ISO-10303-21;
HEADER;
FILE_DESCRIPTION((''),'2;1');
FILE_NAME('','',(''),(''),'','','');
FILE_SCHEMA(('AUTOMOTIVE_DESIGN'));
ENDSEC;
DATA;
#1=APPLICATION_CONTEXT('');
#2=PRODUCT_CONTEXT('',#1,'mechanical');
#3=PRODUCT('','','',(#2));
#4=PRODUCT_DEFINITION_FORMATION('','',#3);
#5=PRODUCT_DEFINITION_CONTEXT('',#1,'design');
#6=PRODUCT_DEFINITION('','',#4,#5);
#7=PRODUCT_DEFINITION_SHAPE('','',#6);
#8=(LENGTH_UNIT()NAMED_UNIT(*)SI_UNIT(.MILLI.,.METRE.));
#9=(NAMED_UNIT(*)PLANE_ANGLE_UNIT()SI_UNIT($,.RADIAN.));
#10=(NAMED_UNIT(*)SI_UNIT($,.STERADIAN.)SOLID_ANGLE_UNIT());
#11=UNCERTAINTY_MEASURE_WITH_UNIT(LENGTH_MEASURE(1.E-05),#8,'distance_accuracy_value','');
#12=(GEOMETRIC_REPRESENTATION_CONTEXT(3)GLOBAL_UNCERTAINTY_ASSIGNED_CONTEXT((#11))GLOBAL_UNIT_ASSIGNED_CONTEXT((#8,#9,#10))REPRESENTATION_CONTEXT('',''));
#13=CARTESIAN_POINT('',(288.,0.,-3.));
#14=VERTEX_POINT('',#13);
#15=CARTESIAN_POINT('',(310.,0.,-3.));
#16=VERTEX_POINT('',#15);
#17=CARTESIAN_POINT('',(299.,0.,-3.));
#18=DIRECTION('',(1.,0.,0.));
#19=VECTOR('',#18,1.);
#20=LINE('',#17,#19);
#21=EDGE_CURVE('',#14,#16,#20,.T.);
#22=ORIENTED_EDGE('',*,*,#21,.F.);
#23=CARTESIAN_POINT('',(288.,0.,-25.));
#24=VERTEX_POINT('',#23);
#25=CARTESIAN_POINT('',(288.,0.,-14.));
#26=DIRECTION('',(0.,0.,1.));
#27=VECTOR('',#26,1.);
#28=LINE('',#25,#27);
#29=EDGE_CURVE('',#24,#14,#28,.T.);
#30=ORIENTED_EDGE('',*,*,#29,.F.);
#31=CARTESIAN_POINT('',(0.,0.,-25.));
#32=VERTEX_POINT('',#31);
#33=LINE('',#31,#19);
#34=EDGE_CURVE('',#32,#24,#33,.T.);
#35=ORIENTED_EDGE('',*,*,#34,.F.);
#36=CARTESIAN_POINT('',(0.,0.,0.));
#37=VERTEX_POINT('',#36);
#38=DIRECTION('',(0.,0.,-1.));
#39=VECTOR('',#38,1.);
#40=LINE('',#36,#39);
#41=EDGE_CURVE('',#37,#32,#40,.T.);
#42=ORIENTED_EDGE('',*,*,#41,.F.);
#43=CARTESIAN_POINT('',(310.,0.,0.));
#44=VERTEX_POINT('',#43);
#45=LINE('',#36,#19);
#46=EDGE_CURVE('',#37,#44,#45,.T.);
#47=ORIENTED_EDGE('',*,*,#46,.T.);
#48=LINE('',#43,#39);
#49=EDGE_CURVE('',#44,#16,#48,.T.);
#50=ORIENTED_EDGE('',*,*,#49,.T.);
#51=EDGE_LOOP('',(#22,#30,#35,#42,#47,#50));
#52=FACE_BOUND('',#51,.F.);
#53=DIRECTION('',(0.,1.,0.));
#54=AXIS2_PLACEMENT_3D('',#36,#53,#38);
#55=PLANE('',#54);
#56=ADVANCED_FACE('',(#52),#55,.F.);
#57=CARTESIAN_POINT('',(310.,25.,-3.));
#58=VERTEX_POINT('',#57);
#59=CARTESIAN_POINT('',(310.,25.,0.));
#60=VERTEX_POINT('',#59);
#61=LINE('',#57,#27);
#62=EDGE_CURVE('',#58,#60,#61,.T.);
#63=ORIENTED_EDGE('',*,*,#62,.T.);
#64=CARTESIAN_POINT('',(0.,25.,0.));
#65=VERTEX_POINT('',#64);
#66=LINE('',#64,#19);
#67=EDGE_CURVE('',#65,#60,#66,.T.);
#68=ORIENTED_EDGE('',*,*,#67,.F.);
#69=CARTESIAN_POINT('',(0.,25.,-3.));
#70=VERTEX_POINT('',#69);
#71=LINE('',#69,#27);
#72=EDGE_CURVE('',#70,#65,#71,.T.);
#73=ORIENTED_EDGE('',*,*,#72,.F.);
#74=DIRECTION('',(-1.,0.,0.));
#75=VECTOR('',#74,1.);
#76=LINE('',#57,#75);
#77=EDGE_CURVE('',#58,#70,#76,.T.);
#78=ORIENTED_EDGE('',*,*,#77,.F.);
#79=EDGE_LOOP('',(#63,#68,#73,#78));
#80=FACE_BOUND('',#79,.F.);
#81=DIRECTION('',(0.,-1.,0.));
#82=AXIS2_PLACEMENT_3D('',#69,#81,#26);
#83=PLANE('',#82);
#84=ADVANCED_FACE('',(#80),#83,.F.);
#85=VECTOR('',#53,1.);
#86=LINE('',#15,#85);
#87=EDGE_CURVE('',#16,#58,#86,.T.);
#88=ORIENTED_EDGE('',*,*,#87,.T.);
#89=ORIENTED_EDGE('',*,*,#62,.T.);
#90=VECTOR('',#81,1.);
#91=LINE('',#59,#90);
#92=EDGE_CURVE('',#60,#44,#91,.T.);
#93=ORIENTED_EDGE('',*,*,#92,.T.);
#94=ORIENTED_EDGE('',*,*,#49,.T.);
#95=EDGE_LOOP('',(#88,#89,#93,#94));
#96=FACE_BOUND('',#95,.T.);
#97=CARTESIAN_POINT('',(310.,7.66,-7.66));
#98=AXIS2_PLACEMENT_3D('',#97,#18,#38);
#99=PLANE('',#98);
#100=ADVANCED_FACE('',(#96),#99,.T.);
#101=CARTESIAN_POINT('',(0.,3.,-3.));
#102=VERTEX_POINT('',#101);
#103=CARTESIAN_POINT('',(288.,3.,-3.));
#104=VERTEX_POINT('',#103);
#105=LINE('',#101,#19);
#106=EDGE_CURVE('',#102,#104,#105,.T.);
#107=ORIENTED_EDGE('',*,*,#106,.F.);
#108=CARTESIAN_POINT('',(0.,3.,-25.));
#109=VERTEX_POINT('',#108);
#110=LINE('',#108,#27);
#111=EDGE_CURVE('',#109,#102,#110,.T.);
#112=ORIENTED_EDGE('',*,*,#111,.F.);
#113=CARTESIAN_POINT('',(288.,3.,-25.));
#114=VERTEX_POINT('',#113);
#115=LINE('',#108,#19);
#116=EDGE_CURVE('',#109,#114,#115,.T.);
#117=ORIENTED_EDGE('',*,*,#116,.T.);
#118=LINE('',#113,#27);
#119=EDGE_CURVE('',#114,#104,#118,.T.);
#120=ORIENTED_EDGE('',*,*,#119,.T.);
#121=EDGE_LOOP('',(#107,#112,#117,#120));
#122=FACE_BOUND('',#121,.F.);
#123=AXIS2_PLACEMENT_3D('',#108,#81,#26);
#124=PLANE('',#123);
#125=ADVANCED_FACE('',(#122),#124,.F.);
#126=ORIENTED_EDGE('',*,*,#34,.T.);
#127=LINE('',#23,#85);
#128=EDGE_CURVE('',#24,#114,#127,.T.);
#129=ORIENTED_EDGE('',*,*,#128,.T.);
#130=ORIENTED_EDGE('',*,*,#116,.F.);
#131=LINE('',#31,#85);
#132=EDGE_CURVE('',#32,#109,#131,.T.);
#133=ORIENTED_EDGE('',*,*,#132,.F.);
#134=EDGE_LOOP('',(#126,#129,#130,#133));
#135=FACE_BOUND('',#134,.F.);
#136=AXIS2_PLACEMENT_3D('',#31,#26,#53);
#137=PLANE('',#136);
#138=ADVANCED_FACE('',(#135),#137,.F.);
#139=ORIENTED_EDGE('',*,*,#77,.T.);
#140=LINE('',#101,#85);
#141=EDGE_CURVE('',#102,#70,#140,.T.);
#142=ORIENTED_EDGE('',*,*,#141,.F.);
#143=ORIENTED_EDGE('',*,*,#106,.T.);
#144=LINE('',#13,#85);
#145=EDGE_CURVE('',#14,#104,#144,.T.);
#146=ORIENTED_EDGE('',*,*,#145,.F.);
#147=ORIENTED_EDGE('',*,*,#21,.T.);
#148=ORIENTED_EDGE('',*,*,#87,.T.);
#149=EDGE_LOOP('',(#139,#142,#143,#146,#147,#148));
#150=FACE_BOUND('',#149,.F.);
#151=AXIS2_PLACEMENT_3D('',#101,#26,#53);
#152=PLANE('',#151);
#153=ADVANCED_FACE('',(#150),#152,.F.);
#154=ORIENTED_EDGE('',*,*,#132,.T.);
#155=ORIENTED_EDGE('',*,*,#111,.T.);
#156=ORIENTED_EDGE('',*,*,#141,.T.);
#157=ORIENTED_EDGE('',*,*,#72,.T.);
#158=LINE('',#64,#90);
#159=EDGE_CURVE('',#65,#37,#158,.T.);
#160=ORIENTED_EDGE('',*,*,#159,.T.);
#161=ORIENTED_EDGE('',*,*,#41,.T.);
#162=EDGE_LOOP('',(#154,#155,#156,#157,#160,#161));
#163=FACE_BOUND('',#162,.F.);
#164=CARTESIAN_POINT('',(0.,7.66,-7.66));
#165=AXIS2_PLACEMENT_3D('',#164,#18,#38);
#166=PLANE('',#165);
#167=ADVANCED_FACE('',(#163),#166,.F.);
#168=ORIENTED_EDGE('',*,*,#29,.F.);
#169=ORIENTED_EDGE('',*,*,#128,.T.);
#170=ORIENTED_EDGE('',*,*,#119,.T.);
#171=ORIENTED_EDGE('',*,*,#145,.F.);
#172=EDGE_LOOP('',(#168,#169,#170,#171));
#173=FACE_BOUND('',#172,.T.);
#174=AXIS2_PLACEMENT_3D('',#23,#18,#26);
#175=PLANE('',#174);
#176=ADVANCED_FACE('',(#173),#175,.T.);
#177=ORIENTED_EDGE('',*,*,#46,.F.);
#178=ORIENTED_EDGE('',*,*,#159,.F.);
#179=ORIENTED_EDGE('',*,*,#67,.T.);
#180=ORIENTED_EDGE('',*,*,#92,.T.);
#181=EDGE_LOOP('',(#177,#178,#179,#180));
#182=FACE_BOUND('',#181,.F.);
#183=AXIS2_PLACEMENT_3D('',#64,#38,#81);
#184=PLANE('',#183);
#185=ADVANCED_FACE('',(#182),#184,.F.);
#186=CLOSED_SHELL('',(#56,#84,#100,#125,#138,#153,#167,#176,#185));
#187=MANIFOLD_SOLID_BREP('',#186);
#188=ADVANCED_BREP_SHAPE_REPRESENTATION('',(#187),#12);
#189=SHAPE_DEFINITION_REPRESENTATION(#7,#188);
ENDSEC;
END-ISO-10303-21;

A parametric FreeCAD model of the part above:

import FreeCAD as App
import Part
import Sketcher


def add_polygon(sketch, points):
    """Adds a closed chain of lines whose ends are joined by coincident constraints."""
    first, n = sketch.GeometryCount, len(points)
    for a, b in zip(points, points[1:] + points[:1]):
        sketch.addGeometry(Part.LineSegment(App.Vector(*a, 0), App.Vector(*b, 0)), False)
    for i in range(n):
        sketch.addConstraint(Sketcher.Constraint("Coincident", first + i, 2, first + (i + 1) % n, 1))

doc = App.newDocument("Part")
body = doc.addObject("PartDesign::Body", "Body")

sketch1 = body.newObject("Sketcher::SketchObject", "Sketch")
sketch1.AttachmentSupport = (doc.getObject("YZ_Plane"), [""])
sketch1.MapMode = "FlatFace"
add_polygon(sketch1, [(25, 0), (0, 0), (0, -25), (3, -25), (3, -3), (25, -3)])
sketch1.addConstraint(Sketcher.Constraint("Horizontal", 0))
sketch1.addConstraint(Sketcher.Constraint("Vertical", 1))
sketch1.addConstraint(Sketcher.Constraint("Horizontal", 2))
sketch1.addConstraint(Sketcher.Constraint("Vertical", 3))
sketch1.addConstraint(Sketcher.Constraint("Horizontal", 4))
sketch1.addConstraint(Sketcher.Constraint("Vertical", 5))
sketch1.addConstraint(Sketcher.Constraint("Coincident", 0, 2, -1, 1))
sketch1.addConstraint(Sketcher.Constraint("Equal", 0, 1))
sketch1.addConstraint(Sketcher.Constraint("Equal", 4, 3))
sketch1.addConstraint(Sketcher.Constraint("DistanceX", 0, 2, 0, 1, 25.0))
sketch1.addConstraint(Sketcher.Constraint("DistanceX", 2, 1, 2, 2, 3.0))
pad1 = body.newObject("PartDesign::Pad", "Pad")
pad1.Profile = sketch1
pad1.Length = 310

sketch2 = body.newObject("Sketcher::SketchObject", "Sketch001")
sketch2.AttachmentSupport = (doc.getObject("XZ_Plane"), [""])
sketch2.MapMode = "FlatFace"
add_polygon(sketch2, [(288, -3), (288, -25), (310, -25), (310, -3)])
sketch2.addConstraint(Sketcher.Constraint("Vertical", 0))
sketch2.addConstraint(Sketcher.Constraint("Horizontal", 1))
sketch2.addConstraint(Sketcher.Constraint("Vertical", 2))
sketch2.addConstraint(Sketcher.Constraint("Horizontal", 3))
sketch2.addConstraint(Sketcher.Constraint("Equal", 3, 0))
sketch2.addConstraint(Sketcher.Constraint("DistanceX", 1, 1, 1, 2, 22.0))
sketch2.addConstraint(Sketcher.Constraint("DistanceX", -1, 1, 0, 2, 288.0))
sketch2.addConstraint(Sketcher.Constraint("DistanceY", 0, 2, -1, 1, 25.0))
pocket1 = body.newObject("PartDesign::Pocket", "Pocket")
pocket1.Profile = sketch2
pocket1.Type = "ThroughAll"

doc.recompute()
